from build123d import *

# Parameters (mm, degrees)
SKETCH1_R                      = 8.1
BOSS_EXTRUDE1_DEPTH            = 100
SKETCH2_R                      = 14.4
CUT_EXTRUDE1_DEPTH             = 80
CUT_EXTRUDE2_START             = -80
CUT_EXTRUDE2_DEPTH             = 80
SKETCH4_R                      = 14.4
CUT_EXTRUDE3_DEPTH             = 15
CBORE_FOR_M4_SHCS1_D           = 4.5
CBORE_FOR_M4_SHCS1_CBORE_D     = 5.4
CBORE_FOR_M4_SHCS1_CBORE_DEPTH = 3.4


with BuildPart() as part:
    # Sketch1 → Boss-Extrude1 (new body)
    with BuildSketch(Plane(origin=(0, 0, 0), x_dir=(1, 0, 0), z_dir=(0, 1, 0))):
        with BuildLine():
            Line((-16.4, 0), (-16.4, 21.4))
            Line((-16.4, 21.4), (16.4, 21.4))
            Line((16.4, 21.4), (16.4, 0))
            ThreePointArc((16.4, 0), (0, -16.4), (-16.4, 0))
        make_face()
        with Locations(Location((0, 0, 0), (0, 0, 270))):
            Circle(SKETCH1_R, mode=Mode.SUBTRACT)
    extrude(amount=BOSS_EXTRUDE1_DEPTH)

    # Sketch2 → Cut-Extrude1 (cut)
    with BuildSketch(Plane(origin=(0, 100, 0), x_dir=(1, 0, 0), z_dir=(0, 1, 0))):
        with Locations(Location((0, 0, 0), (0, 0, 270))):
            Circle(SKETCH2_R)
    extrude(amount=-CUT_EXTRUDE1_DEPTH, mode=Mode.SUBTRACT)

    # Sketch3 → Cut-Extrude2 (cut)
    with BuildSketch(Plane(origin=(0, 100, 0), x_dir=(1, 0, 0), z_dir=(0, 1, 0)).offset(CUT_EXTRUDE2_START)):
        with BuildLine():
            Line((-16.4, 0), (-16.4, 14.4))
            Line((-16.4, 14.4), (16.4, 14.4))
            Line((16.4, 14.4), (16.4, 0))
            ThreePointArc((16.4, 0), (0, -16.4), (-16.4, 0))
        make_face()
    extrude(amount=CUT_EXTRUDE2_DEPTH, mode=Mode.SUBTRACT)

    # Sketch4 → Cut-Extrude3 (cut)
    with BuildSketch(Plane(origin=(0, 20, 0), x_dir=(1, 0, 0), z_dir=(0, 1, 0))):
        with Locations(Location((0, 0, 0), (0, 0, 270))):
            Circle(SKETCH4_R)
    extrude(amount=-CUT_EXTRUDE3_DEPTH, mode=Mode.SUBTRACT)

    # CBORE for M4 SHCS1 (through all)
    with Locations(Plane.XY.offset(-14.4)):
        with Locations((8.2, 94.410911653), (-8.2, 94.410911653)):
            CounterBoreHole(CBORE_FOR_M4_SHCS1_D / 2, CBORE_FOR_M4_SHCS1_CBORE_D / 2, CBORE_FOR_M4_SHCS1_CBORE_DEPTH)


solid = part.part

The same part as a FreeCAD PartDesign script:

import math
import FreeCAD as App
import Part
import Sketcher
Q = App.Units.Quantity

doc = App.newDocument("Part")
body = doc.addObject("PartDesign::Body", "Body")

sketch1 = doc.addObject("Sketcher::SketchObject", "Sketch")
body.addObject(sketch1)
sketch1.AttachmentSupport = (doc.XZ_Plane, [""])
sketch1.MapMode = "FlatFace"
sketch1.addGeometry([
    Part.LineSegment(App.Vector(-16, -21, 0), App.Vector(-16, 0, 0)),
    Part.ArcOfCircle(Part.Circle(App.Vector(0, 0, 0), App.Vector(0, 0, 1), 16), math.radians(0), math.radians(180)),
    Part.LineSegment(App.Vector(16, 0, 0), App.Vector(16, -21, 0)),
    Part.LineSegment(App.Vector(16, -21, 0), App.Vector(-16, -21, 0)),
    Part.Circle(App.Vector(0, 0, 0), App.Vector(0, 0, 1), 8),
], False)
sketch1.addConstraint([
    Sketcher.Constraint("Tangent", 0, 2, 1, 2),
    Sketcher.Constraint("Tangent", 1, 1, 2, 1),
    Sketcher.Constraint("Coincident", 2, 2, 3, 1),
    Sketcher.Constraint("Coincident", 3, 2, 0, 1),
    Sketcher.Constraint("Vertical", 0),
    Sketcher.Constraint("Vertical", 2),
    Sketcher.Constraint("Horizontal", 3),
    Sketcher.Constraint("Coincident", 1, 3, -1, 1),
    Sketcher.Constraint("Coincident", 4, 3, -1, 1),
    Sketcher.Constraint("Diameter", 4, Q("16.2 mm")),
    Sketcher.Constraint("Radius", 1, Q("16.4 mm")),
    Sketcher.Constraint("DistanceY", 0, 1, 0, 2, Q("21.4 mm")),
])
pad1 = doc.addObject("PartDesign::Pad", "Pad")
body.addObject(pad1)
pad1.Profile = sketch1
pad1.Length = 100
pad1.Reversed = True

sketch2 = doc.addObject("Sketcher::SketchObject", "Sketch001")
body.addObject(sketch2)
sketch2.AttachmentSupport = (doc.XZ_Plane, [""])
sketch2.MapMode = "FlatFace"
sketch2.AttachmentOffset = App.Placement(App.Vector(0, 0, -100), App.Rotation())
sketch2.addGeometry(Part.Circle(App.Vector(0, 0, 0), App.Vector(0, 0, 1), 14), False)
sketch2.addConstraint([
    Sketcher.Constraint("Coincident", 0, 3, -1, 1),
    Sketcher.Constraint("Diameter", 0, Q("28.8 mm")),
])
pocket1 = doc.addObject("PartDesign::Pocket", "Pocket")
body.addObject(pocket1)
pocket1.Profile = sketch2
pocket1.Length = 80
pocket1.Reversed = True

sketch3 = doc.addObject("Sketcher::SketchObject", "Sketch002")
body.addObject(sketch3)
sketch3.AttachmentSupport = (doc.XZ_Plane, [""])
sketch3.MapMode = "FlatFace"
sketch3.AttachmentOffset = App.Placement(App.Vector(0, 0, -20), App.Rotation())
sketch3.addGeometry([
    Part.LineSegment(App.Vector(-16, -14, 0), App.Vector(-16, 0, 0)),
    Part.ArcOfCircle(Part.Circle(App.Vector(0, 0, 0), App.Vector(0, 0, 1), 16), math.radians(0), math.radians(180)),
    Part.LineSegment(App.Vector(16, 0, 0), App.Vector(16, -14, 0)),
    Part.LineSegment(App.Vector(16, -14, 0), App.Vector(-16, -14, 0)),
], False)
sketch3.addConstraint([
    Sketcher.Constraint("Tangent", 0, 2, 1, 2),
    Sketcher.Constraint("Tangent", 1, 1, 2, 1),
    Sketcher.Constraint("Coincident", 2, 2, 3, 1),
    Sketcher.Constraint("Coincident", 3, 2, 0, 1),
    Sketcher.Constraint("Vertical", 0),
    Sketcher.Constraint("Vertical", 2),
    Sketcher.Constraint("Horizontal", 3),
    Sketcher.Constraint("Coincident", 1, 3, -1, 1),
    Sketcher.Constraint("Radius", 1, Q("16.4 mm")),
    Sketcher.Constraint("DistanceY", 0, 1, 0, 2, Q("14.4 mm")),
])
pocket2 = doc.addObject("PartDesign::Pocket", "Pocket001")
body.addObject(pocket2)
pocket2.Profile = sketch3
pocket2.Length = 80

sketch4 = doc.addObject("Sketcher::SketchObject", "Sketch003")
body.addObject(sketch4)
sketch4.AttachmentSupport = (doc.XZ_Plane, [""])
sketch4.MapMode = "FlatFace"
sketch4.AttachmentOffset = App.Placement(App.Vector(0, 0, -20), App.Rotation())
sketch4.addGeometry(Part.Circle(App.Vector(0, 0, 0), App.Vector(0, 0, 1), 14), False)
sketch4.addConstraint([
    Sketcher.Constraint("Coincident", 0, 3, -1, 1),
    Sketcher.Constraint("Diameter", 0, Q("28.8 mm")),
])
pocket3 = doc.addObject("PartDesign::Pocket", "Pocket002")
body.addObject(pocket3)
pocket3.Profile = sketch4
pocket3.Length = 15
pocket3.Reversed = True

sketch5 = doc.addObject("Sketcher::SketchObject", "Sketch004")
body.addObject(sketch5)
sketch5.AttachmentSupport = (doc.XY_Plane, [""])
sketch5.MapMode = "FlatFace"
sketch5.AttachmentOffset = App.Placement(App.Vector(0, 0, -14.4), App.Rotation())
sketch5.addGeometry([
    Part.Circle(App.Vector(8.2, 94.4, 0), App.Vector(0, 0, 1), 2.2),
    Part.Circle(App.Vector(-8.2, 94.4, 0), App.Vector(0, 0, 1), 2.2),
], False)
sketch5.addConstraint([
    Sketcher.Constraint("Equal", 0, 1),
    Sketcher.Constraint("Symmetric", 0, 3, 1, 3, -2),
    Sketcher.Constraint("Diameter", 0, Q("4.5 mm")),
    Sketcher.Constraint("DistanceX", -1, 1, 0, 3, Q("8.2 mm")),
    Sketcher.Constraint("DistanceY", -1, 1, 0, 3, Q("94.410912 mm")),
])
doc.recompute()
hole = doc.addObject("PartDesign::Hole", "Hole")
body.addObject(hole)
hole.Profile = sketch5
hole.ThreadType = "None"
hole.Diameter = 4.5
hole.DepthType = "ThroughAll"
hole.HoleCutType = "Counterbore"
hole.HoleCutDiameter = 5.4
hole.HoleCutDepth = 3.4

doc.recompute()
